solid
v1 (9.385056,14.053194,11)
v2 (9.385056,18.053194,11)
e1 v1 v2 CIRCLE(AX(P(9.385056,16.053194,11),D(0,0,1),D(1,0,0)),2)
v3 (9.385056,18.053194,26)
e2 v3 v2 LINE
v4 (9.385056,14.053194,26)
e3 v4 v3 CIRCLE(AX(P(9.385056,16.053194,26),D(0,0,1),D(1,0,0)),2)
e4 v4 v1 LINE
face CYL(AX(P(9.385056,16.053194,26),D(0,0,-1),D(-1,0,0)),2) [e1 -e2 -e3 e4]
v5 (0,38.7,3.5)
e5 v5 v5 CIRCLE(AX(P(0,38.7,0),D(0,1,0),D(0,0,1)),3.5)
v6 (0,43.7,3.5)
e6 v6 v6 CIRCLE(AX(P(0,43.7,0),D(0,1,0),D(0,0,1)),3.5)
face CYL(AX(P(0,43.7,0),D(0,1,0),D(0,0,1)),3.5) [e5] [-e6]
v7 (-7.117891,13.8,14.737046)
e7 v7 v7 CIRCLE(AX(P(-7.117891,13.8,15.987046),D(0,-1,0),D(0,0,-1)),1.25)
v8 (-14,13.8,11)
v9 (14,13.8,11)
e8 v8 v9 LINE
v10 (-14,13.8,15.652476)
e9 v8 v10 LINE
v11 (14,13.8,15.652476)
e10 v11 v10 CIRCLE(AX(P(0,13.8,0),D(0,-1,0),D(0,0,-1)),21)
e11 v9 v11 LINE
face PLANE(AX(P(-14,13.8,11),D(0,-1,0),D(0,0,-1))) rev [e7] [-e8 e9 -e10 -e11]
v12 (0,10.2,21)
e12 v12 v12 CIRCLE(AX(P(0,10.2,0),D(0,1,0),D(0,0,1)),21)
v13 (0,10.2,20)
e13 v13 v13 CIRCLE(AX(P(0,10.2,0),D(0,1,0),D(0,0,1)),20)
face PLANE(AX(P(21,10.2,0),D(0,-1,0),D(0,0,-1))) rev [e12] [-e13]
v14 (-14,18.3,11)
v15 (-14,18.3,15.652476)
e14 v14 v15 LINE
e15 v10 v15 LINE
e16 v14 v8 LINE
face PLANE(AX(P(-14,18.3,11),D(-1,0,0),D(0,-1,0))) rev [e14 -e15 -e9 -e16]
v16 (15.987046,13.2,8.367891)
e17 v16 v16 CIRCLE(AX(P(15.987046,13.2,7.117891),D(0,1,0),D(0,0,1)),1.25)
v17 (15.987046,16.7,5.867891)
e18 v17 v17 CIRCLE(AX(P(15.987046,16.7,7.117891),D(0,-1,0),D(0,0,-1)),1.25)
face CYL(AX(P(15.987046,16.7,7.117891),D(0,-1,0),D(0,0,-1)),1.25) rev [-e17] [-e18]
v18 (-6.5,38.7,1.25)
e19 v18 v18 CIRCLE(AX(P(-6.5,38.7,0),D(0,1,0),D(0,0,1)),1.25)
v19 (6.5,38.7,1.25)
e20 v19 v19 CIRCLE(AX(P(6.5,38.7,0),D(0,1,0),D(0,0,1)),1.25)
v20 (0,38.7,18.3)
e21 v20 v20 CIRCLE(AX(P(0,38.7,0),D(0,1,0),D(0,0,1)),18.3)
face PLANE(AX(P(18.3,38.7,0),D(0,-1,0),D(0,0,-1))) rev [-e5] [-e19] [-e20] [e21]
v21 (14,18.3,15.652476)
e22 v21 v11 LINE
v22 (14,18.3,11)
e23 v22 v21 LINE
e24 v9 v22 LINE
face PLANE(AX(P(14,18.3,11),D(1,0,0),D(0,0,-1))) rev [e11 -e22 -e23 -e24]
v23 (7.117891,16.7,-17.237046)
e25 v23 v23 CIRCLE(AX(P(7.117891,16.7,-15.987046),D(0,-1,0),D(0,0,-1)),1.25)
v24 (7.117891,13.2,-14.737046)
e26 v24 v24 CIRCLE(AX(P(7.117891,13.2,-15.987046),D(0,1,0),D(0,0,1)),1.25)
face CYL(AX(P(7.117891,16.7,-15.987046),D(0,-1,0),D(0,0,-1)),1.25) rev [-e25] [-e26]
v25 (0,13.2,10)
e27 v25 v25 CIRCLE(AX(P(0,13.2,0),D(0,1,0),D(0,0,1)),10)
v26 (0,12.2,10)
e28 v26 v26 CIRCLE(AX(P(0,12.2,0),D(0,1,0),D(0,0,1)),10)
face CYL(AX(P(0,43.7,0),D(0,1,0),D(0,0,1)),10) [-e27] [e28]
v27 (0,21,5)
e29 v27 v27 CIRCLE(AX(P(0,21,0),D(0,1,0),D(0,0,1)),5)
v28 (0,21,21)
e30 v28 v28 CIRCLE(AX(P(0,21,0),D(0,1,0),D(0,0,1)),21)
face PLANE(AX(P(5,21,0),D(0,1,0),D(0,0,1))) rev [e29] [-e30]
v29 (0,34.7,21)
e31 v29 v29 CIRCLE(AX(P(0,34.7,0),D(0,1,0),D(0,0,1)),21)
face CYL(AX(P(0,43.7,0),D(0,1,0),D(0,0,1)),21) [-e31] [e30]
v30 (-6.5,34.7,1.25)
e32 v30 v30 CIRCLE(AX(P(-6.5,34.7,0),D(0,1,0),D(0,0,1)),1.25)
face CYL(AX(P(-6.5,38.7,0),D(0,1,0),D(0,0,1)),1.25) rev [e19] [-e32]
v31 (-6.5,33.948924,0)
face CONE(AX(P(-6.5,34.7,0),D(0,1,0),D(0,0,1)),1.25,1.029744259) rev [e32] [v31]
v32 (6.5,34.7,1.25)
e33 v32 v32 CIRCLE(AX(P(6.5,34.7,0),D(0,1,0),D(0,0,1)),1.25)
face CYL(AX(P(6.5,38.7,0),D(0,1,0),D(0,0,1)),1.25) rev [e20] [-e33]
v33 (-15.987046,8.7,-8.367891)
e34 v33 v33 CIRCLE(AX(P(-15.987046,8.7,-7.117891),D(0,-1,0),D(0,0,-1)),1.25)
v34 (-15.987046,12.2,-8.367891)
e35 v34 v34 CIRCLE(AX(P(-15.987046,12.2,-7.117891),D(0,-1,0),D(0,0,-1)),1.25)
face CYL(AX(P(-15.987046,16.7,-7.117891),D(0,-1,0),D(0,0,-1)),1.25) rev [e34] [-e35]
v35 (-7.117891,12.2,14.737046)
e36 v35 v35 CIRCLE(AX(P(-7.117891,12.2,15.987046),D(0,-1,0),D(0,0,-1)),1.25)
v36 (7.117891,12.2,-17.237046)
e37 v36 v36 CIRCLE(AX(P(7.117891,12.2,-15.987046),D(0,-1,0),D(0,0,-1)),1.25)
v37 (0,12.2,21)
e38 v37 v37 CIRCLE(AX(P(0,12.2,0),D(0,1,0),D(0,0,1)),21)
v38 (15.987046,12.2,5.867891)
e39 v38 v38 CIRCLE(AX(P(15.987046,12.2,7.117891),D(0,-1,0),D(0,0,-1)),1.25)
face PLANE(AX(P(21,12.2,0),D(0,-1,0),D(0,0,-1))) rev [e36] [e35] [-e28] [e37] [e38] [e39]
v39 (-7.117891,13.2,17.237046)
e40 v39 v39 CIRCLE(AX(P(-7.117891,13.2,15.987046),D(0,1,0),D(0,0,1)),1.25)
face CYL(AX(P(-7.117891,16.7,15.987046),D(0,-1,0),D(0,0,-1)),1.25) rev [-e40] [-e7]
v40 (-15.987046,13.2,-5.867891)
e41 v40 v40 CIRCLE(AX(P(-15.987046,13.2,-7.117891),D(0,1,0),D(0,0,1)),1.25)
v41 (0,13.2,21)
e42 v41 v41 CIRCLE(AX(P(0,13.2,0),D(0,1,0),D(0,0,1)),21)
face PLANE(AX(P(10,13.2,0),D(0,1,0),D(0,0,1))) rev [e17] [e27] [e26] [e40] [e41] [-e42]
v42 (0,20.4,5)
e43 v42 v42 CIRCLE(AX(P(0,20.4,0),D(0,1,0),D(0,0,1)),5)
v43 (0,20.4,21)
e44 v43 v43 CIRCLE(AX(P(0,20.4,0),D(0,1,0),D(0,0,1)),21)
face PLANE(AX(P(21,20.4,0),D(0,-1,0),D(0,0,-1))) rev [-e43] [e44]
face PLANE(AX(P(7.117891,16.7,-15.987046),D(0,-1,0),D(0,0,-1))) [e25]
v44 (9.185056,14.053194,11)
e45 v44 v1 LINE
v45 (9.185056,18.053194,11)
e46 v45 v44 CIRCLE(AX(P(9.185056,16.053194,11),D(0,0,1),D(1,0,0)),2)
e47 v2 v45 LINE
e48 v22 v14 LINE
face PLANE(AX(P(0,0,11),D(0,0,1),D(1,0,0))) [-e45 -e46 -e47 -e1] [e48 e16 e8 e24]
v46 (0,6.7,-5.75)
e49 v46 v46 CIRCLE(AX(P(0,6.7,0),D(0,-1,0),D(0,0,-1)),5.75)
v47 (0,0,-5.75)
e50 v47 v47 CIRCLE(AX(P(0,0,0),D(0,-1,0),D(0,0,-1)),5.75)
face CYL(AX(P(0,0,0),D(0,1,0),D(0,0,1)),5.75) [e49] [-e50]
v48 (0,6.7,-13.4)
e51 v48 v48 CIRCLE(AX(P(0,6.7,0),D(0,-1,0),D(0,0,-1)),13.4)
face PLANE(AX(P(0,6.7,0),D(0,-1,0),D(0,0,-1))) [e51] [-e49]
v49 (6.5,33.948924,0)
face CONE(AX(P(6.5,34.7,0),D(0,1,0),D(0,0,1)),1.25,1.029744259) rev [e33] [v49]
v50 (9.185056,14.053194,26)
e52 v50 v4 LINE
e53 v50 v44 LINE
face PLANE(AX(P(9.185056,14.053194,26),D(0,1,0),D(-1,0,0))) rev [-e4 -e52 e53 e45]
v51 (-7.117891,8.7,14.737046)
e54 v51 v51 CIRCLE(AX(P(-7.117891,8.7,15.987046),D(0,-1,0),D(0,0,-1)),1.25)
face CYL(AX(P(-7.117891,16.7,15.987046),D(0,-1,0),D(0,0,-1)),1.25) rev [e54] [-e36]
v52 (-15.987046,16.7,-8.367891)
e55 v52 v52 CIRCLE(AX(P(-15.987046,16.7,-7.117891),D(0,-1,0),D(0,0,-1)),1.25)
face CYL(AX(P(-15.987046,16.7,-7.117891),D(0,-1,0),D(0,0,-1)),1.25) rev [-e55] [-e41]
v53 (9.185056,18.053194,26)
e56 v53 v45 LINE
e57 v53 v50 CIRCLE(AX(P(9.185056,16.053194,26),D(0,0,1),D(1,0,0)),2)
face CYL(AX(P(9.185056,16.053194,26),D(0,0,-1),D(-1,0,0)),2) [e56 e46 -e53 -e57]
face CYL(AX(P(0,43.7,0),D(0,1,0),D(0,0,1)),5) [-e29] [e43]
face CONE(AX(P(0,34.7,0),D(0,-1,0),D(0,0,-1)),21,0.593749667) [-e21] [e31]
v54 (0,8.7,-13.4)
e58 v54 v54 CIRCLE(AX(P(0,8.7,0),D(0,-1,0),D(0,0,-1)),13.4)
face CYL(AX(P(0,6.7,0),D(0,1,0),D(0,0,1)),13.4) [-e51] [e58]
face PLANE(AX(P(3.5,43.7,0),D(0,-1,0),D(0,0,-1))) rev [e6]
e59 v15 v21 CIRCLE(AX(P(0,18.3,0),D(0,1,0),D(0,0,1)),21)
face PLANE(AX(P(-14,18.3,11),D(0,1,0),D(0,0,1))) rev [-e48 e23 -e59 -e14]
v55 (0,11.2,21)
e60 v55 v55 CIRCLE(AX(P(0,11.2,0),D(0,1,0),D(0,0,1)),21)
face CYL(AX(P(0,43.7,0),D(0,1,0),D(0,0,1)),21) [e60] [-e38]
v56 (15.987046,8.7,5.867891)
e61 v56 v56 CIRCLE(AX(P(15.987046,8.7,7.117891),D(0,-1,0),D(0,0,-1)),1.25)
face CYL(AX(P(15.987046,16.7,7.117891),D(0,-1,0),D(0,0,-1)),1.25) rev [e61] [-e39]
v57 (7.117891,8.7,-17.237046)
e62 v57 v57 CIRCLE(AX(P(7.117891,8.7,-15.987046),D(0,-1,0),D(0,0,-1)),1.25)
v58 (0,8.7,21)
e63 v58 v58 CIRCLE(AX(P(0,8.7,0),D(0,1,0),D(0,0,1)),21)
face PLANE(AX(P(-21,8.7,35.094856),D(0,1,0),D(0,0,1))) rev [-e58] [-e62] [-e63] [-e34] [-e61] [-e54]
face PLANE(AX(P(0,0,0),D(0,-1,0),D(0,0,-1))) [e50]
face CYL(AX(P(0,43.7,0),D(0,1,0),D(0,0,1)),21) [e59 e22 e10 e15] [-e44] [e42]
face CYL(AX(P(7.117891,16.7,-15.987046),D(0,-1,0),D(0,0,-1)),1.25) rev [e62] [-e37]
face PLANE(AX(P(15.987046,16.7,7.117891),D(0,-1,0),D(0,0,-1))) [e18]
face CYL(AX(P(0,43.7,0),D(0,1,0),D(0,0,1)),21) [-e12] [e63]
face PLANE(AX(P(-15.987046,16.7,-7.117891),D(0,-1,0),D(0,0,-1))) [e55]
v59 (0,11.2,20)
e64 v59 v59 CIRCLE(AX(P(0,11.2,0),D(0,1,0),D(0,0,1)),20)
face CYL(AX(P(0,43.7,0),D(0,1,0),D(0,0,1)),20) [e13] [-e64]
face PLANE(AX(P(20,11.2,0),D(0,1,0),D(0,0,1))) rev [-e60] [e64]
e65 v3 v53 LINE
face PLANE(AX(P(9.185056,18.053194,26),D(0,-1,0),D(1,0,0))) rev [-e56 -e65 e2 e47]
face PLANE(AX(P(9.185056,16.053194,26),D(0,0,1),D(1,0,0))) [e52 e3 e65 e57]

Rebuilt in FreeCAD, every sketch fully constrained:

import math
import FreeCAD as App
import Part
import Sketcher

V = App.Vector
Q = App.Units.Quantity

doc = App.newDocument("Part")
body = doc.addObject("PartDesign::Body", "Body")

# Sketch on XY plane
sketch1 = body.newObject("Sketcher::SketchObject", "Sketch")
sketch1.AttachmentSupport = (doc.getObject("XY_Plane"), [""])
sketch1.MapMode = "FlatFace"
sketch1.addGeometry(Part.LineSegment(V(0, 0, 0), V(4.1, 0, 0)), False)
sketch1.addGeometry(Part.LineSegment(V(4.1, 0, 0), V(4.1, 6.7, 0)), False)
sketch1.addGeometry(Part.LineSegment(V(4.1, 6.7, 0), V(13.4, 6.7, 0)), False)
sketch1.addGeometry(Part.LineSegment(V(13.4, 6.7, 0), V(13.4, 8.7, 0)), False)
sketch1.addGeometry(Part.LineSegment(V(13.4, 8.7, 0), V(21, 8.7, 0)), False)
sketch1.addGeometry(Part.LineSegment(V(21, 8.7, 0), V(21, 10.2, 0)), False)
sketch1.addGeometry(Part.LineSegment(V(21, 10.2, 0), V(20, 10.2, 0)), False)
sketch1.addGeometry(Part.LineSegment(V(20, 10.2, 0), V(20, 11.2, 0)), False)
sketch1.addGeometry(Part.LineSegment(V(20, 11.2, 0), V(21, 11.2, 0)), False)
sketch1.addGeometry(Part.LineSegment(V(21, 11.2, 0), V(21, 12.2, 0)), False)
sketch1.addGeometry(Part.LineSegment(V(21, 12.2, 0), V(10, 12.2, 0)), False)
sketch1.addGeometry(Part.LineSegment(V(10, 12.2, 0), V(10, 13.2, 0)), False)
sketch1.addGeometry(Part.LineSegment(V(10, 13.2, 0), V(21, 13.2, 0)), False)
sketch1.addGeometry(Part.LineSegment(V(21, 13.2, 0), V(21, 20.4, 0)), False)
sketch1.addGeometry(Part.LineSegment(V(21, 20.4, 0), V(5, 20.4, 0)), False)
sketch1.addGeometry(Part.LineSegment(V(5, 20.4, 0), V(5, 21, 0)), False)
sketch1.addGeometry(Part.LineSegment(V(5, 21, 0), V(21, 21, 0)), False)
sketch1.addGeometry(Part.LineSegment(V(21, 21, 0), V(21, 34.7, 0)), False)
sketch1.addGeometry(Part.LineSegment(V(21, 34.7, 0), V(18.3, 38.7, 0)), False)
sketch1.addGeometry(Part.LineSegment(V(18.3, 38.7, 0), V(3.5, 38.7, 0)), False)
sketch1.addGeometry(Part.LineSegment(V(3.5, 38.7, 0), V(3.5, 43.7, 0)), False)
sketch1.addGeometry(Part.LineSegment(V(3.5, 43.7, 0), V(0, 43.7, 0)), False)
sketch1.addGeometry(Part.LineSegment(V(0, 43.7, 0), V(0, 0, 0)), False)
sketch1.addConstraint(Sketcher.Constraint("Coincident", 0, 2, 1, 1))
sketch1.addConstraint(Sketcher.Constraint("Coincident", 1, 2, 2, 1))
sketch1.addConstraint(Sketcher.Constraint("Coincident", 2, 2, 3, 1))
sketch1.addConstraint(Sketcher.Constraint("Coincident", 3, 2, 4, 1))
sketch1.addConstraint(Sketcher.Constraint("Coincident", 4, 2, 5, 1))
sketch1.addConstraint(Sketcher.Constraint("Coincident", 5, 2, 6, 1))
sketch1.addConstraint(Sketcher.Constraint("Coincident", 6, 2, 7, 1))
sketch1.addConstraint(Sketcher.Constraint("Coincident", 7, 2, 8, 1))
sketch1.addConstraint(Sketcher.Constraint("Coincident", 8, 2, 9, 1))
sketch1.addConstraint(Sketcher.Constraint("Coincident", 9, 2, 10, 1))
sketch1.addConstraint(Sketcher.Constraint("Coincident", 10, 2, 11, 1))
sketch1.addConstraint(Sketcher.Constraint("Coincident", 11, 2, 12, 1))
sketch1.addConstraint(Sketcher.Constraint("Coincident", 12, 2, 13, 1))
sketch1.addConstraint(Sketcher.Constraint("Coincident", 13, 2, 14, 1))
sketch1.addConstraint(Sketcher.Constraint("Coincident", 14, 2, 15, 1))
sketch1.addConstraint(Sketcher.Constraint("Coincident", 15, 2, 16, 1))
sketch1.addConstraint(Sketcher.Constraint("Coincident", 16, 2, 17, 1))
sketch1.addConstraint(Sketcher.Constraint("Coincident", 17, 2, 18, 1))
sketch1.addConstraint(Sketcher.Constraint("Coincident", 18, 2, 19, 1))
sketch1.addConstraint(Sketcher.Constraint("Coincident", 19, 2, 20, 1))
sketch1.addConstraint(Sketcher.Constraint("Coincident", 20, 2, 21, 1))
sketch1.addConstraint(Sketcher.Constraint("Coincident", 21, 2, 22, 1))
sketch1.addConstraint(Sketcher.Constraint("Coincident", 22, 2, 0, 1))
sketch1.addConstraint(Sketcher.Constraint("Horizontal", 0))
sketch1.addConstraint(Sketcher.Constraint("Vertical", 1))
sketch1.addConstraint(Sketcher.Constraint("Horizontal", 2))
sketch1.addConstraint(Sketcher.Constraint("Vertical", 3))
sketch1.addConstraint(Sketcher.Constraint("Horizontal", 4))
sketch1.addConstraint(Sketcher.Constraint("Vertical", 5))
sketch1.addConstraint(Sketcher.Constraint("Horizontal", 6))
sketch1.addConstraint(Sketcher.Constraint("Vertical", 7))
sketch1.addConstraint(Sketcher.Constraint("Horizontal", 8))
sketch1.addConstraint(Sketcher.Constraint("Vertical", 9))
sketch1.addConstraint(Sketcher.Constraint("Horizontal", 10))
sketch1.addConstraint(Sketcher.Constraint("Vertical", 11))
sketch1.addConstraint(Sketcher.Constraint("Horizontal", 12))
sketch1.addConstraint(Sketcher.Constraint("Vertical", 13))
sketch1.addConstraint(Sketcher.Constraint("Horizontal", 14))
sketch1.addConstraint(Sketcher.Constraint("Vertical", 15))
sketch1.addConstraint(Sketcher.Constraint("Horizontal", 16))
sketch1.addConstraint(Sketcher.Constraint("Vertical", 17))
sketch1.addConstraint(Sketcher.Constraint("Horizontal", 19))
sketch1.addConstraint(Sketcher.Constraint("Vertical", 20))
sketch1.addConstraint(Sketcher.Constraint("Horizontal", 21))
sketch1.addConstraint(Sketcher.Constraint("Vertical", 22))
sketch1.addConstraint(Sketcher.Constraint("Coincident", 22, 2, -1, 1))
sketch1.addConstraint(Sketcher.Constraint("Vertical", 5, 2, 8, 2))
sketch1.addConstraint(Sketcher.Constraint("Vertical", 9, 2, 12, 2))
sketch1.addConstraint(Sketcher.Constraint("Vertical", 13, 2, 16, 2))
sketch1.addConstraint(Sketcher.Constraint("Equal", 8, 7))
sketch1.addConstraint(Sketcher.Constraint("Equal", 7, 9))
sketch1.addConstraint(Sketcher.Constraint("Equal", 9, 11))
sketch1.addConstraint(Sketcher.Constraint("DistanceX", 6, 2, 6, 1, Q("1 mm")))
sketch1.addConstraint(Sketcher.Constraint("DistanceX", 10, 2, 10, 1, Q("11 mm")))
sketch1.addConstraint(Sketcher.Constraint("DistanceX", 14, 2, 14, 1, Q("16 mm")))
sketch1.addConstraint(Sketcher.Constraint("DistanceY", 3, 1, 3, 2, Q("2 mm")))
sketch1.addConstraint(Sketcher.Constraint("DistanceY", 20, 1, 20, 2, Q("5 mm")))
sketch1.addConstraint(Sketcher.Constraint("DistanceX", 0, 1, 0, 2, Q("4.1 mm")))
sketch1.addConstraint(Sketcher.Constraint("DistanceX", 2, 1, 2, 2, Q("9.3 mm")))
sketch1.addConstraint(Sketcher.Constraint("DistanceX", 4, 1, 4, 2, Q("7.6 mm")))
sketch1.addConstraint(Sketcher.Constraint("DistanceX", 19, 2, 19, 1, Q("14.8 mm")))
sketch1.addConstraint(Sketcher.Constraint("DistanceX", 21, 2, 21, 1, Q("3.5 mm")))
sketch1.addConstraint(Sketcher.Constraint("DistanceY", 1, 1, 1, 2, Q("6.7 mm")))
sketch1.addConstraint(Sketcher.Constraint("DistanceY", 5, 1, 5, 2, Q("1.5 mm")))
sketch1.addConstraint(Sketcher.Constraint("DistanceY", 13, 1, 13, 2, Q("7.2 mm")))
sketch1.addConstraint(Sketcher.Constraint("DistanceY", 15, 1, 15, 2, Q("0.6 mm")))
sketch1.addConstraint(Sketcher.Constraint("DistanceY", 17, 1, 17, 2, Q("13.7 mm")))
sketch1.addConstraint(Sketcher.Constraint("DistanceY", 22, 2, 22, 1, Q("43.7 mm")))
revolution = body.newObject("PartDesign::Revolution", "Revolution")
revolution.Profile = sketch1
revolution.ReferenceAxis = (sketch1, ["V_Axis"])
revolution.Angle = 360

# Sketch on XY plane
sketch2 = body.newObject("Sketcher::SketchObject", "Sketch001")
sketch2.AttachmentSupport = (doc.getObject("XY_Plane"), [""])
sketch2.MapMode = "FlatFace"
sketch2.AttachmentOffset = App.Placement(V(0, 0, 21), App.Rotation())
sketch2.addGeometry(Part.LineSegment(V(-14, 18.3, 0), V(-14, 13.8, 0)), False)
sketch2.addGeometry(Part.LineSegment(V(-14, 13.8, 0), V(14, 13.8, 0)), False)
sketch2.addGeometry(Part.LineSegment(V(14, 13.8, 0), V(14, 18.3, 0)), False)
sketch2.addGeometry(Part.LineSegment(V(14, 18.3, 0), V(-14, 18.3, 0)), False)
sketch2.addConstraint(Sketcher.Constraint("Coincident", 0, 2, 1, 1))
sketch2.addConstraint(Sketcher.Constraint("Coincident", 1, 2, 2, 1))
sketch2.addConstraint(Sketcher.Constraint("Coincident", 2, 2, 3, 1))
sketch2.addConstraint(Sketcher.Constraint("Coincident", 3, 2, 0, 1))
sketch2.addConstraint(Sketcher.Constraint("Vertical", 0))
sketch2.addConstraint(Sketcher.Constraint("Horizontal", 1))
sketch2.addConstraint(Sketcher.Constraint("Vertical", 2))
sketch2.addConstraint(Sketcher.Constraint("Horizontal", 3))
sketch2.addConstraint(Sketcher.Constraint("DistanceX", 1, 1, 1, 2, Q("28 mm")))
sketch2.addConstraint(Sketcher.Constraint("DistanceY", 0, 2, 0, 1, Q("4.5 mm")))
sketch2.addConstraint(Sketcher.Constraint("DistanceX", 0, 2, -1, 1, Q("14 mm")))
sketch2.addConstraint(Sketcher.Constraint("DistanceY", -1, 1, 0, 2, Q("13.8 mm")))
pocket1 = body.newObject("PartDesign::Pocket", "Pocket")
pocket1.Profile = sketch2
pocket1.Length = 10

# Sketch on XY plane
sketch3 = body.newObject("Sketcher::SketchObject", "Sketch002")
sketch3.AttachmentSupport = (doc.getObject("XY_Plane"), [""])
sketch3.MapMode = "FlatFace"
sketch3.AttachmentOffset = App.Placement(V(0, 0, 11), App.Rotation())
sketch3.addGeometry(Part.LineSegment(V(9.385056, 18.053194, 0), V(9.185056, 18.053194, 0)), False)
sketch3.addGeometry(Part.ArcOfCircle(Part.Circle(V(9.185056, 16.053194, 0), V(0, 0, 1), 2), math.radians(90), math.radians(270)), False)
sketch3.addGeometry(Part.LineSegment(V(9.185056, 14.053194, 0), V(9.385056, 14.053194, 0)), False)
sketch3.addGeometry(Part.ArcOfCircle(Part.Circle(V(9.385056, 16.053194, 0), V(0, 0, 1), 2), math.radians(-90), math.radians(90)), False)
sketch3.addConstraint(Sketcher.Constraint("Tangent", 0, 2, 1, 1))
sketch3.addConstraint(Sketcher.Constraint("Tangent", 1, 2, 2, 1))
sketch3.addConstraint(Sketcher.Constraint("Tangent", 2, 2, 3, 1))
sketch3.addConstraint(Sketcher.Constraint("Tangent", 3, 2, 0, 1))
sketch3.addConstraint(Sketcher.Constraint("Horizontal", 0))
sketch3.addConstraint(Sketcher.Constraint("Horizontal", 2))
sketch3.addConstraint(Sketcher.Constraint("Radius", 1, Q("2 mm")))
sketch3.addConstraint(Sketcher.Constraint("DistanceX", 0, 2, 0, 1, Q("0.2 mm")))
sketch3.addConstraint(Sketcher.Constraint("DistanceX", -1, 1, 1, 3, Q("9.185056 mm")))
sketch3.addConstraint(Sketcher.Constraint("DistanceY", -1, 1, 1, 3, Q("16.053194 mm")))
pad1 = body.newObject("PartDesign::Pad", "Pad")
pad1.Profile = sketch3
pad1.Length = 15

# Sketch on XZ plane
sketch4 = body.newObject("Sketcher::SketchObject", "Sketch003")
sketch4.AttachmentSupport = (doc.getObject("XZ_Plane"), [""])
sketch4.MapMode = "FlatFace"
sketch4.AttachmentOffset = App.Placement(V(0, 0, -38.7), App.Rotation())
sketch4.addGeometry(Part.Circle(V(-6.5, 0, 0), V(0, 0, 1), 1.25), False)
sketch4.addGeometry(Part.Circle(V(6.5, 0, 0), V(0, 0, 1), 1.25), False)
sketch4.addConstraint(Sketcher.Constraint("Equal", 0, 1))
sketch4.addConstraint(Sketcher.Constraint("Symmetric", 0, 3, 1, 3, -1, 1))
sketch4.addConstraint(Sketcher.Constraint("PointOnObject", 0, 3, -1))
sketch4.addConstraint(Sketcher.Constraint("Diameter", 0, Q("2.5 mm")))
sketch4.addConstraint(Sketcher.Constraint("DistanceX", 0, 3, 1, 3, Q("13 mm")))
doc.recompute()
hole = body.newObject("PartDesign::Hole", "Hole")
hole.Profile = sketch4
hole.ThreadType = "None"
hole.Diameter = 2.5
hole.DepthType = "Dimension"
hole.Depth = 4
hole.DrillPoint = "Angled"
hole.DrillPointAngle = 118
hole.Reversed = True

# Sketch on XY plane
sketch5 = body.newObject("Sketcher::SketchObject", "Sketch004")
sketch5.AttachmentSupport = (doc.getObject("XY_Plane"), [""])
sketch5.MapMode = "FlatFace"
sketch5.addGeometry(Part.LineSegment(V(0, -54.6, 0), V(5, -54.6, 0)), False)
sketch5.addGeometry(Part.LineSegment(V(5, -54.6, 0), V(5, -30.5, 0)), False)
sketch5.addGeometry(Part.LineSegment(V(5, -30.5, 0), V(8.275, -30.5, 0)), False)
sketch5.addGeometry(Part.LineSegment(V(8.275, -30.5, 0), V(8.275, -29.6, 0)), False)
sketch5.addGeometry(Part.LineSegment(V(8.275, -29.6, 0), V(13, -29.6, 0)), False)
sketch5.addGeometry(Part.LineSegment(V(13, -29.6, 0), V(13, -27.6, 0)), False)
sketch5.addGeometry(Part.LineSegment(V(13, -27.6, 0), V(21, -27.6, 0)), False)
sketch5.addGeometry(Part.LineSegment(V(21, -27.6, 0), V(21, 8.7, 0)), False)
sketch5.addGeometry(Part.LineSegment(V(21, 8.7, 0), V(0, 8.7, 0)), False)
sketch5.addGeometry(Part.LineSegment(V(0, 8.7, 0), V(0, -54.6, 0)), False)
sketch5.addConstraint(Sketcher.Constraint("Coincident", 0, 2, 1, 1))
sketch5.addConstraint(Sketcher.Constraint("Coincident", 1, 2, 2, 1))
sketch5.addConstraint(Sketcher.Constraint("Coincident", 2, 2, 3, 1))
sketch5.addConstraint(Sketcher.Constraint("Coincident", 3, 2, 4, 1))
sketch5.addConstraint(Sketcher.Constraint("Coincident", 4, 2, 5, 1))
sketch5.addConstraint(Sketcher.Constraint("Coincident", 5, 2, 6, 1))
sketch5.addConstraint(Sketcher.Constraint("Coincident", 6, 2, 7, 1))
sketch5.addConstraint(Sketcher.Constraint("Coincident", 7, 2, 8, 1))
sketch5.addConstraint(Sketcher.Constraint("Coincident", 8, 2, 9, 1))
sketch5.addConstraint(Sketcher.Constraint("Coincident", 9, 2, 0, 1))
sketch5.addConstraint(Sketcher.Constraint("Horizontal", 0))
sketch5.addConstraint(Sketcher.Constraint("Vertical", 1))
sketch5.addConstraint(Sketcher.Constraint("Horizontal", 2))
sketch5.addConstraint(Sketcher.Constraint("Vertical", 3))
sketch5.addConstraint(Sketcher.Constraint("Horizontal", 4))
sketch5.addConstraint(Sketcher.Constraint("Vertical", 5))
sketch5.addConstraint(Sketcher.Constraint("Horizontal", 6))
sketch5.addConstraint(Sketcher.Constraint("Vertical", 7))
sketch5.addConstraint(Sketcher.Constraint("Horizontal", 8))
sketch5.addConstraint(Sketcher.Constraint("Vertical", 9))
sketch5.addConstraint(Sketcher.Constraint("PointOnObject", 8, 2, -2))
sketch5.addConstraint(Sketcher.Constraint("DistanceX", 0, 1, 0, 2, Q("5 mm")))
sketch5.addConstraint(Sketcher.Constraint("DistanceX", 6, 1, 6, 2, Q("8 mm")))
sketch5.addConstraint(Sketcher.Constraint("DistanceX", 8, 2, 8, 1, Q("21 mm")))
sketch5.addConstraint(Sketcher.Constraint("DistanceY", 5, 1, 5, 2, Q("2 mm")))
sketch5.addConstraint(Sketcher.Constraint("DistanceY", 1, 1, 1, 2, Q("24.1 mm")))
sketch5.addConstraint(Sketcher.Constraint("DistanceY", 3, 1, 3, 2, Q("0.9 mm")))
sketch5.addConstraint(Sketcher.Constraint("DistanceY", 7, 1, 7, 2, Q("36.3 mm")))
sketch5.addConstraint(Sketcher.Constraint("DistanceY", 0, 2, -1, 1, Q("54.6 mm")))
sketch5.addConstraint(Sketcher.Constraint("DistanceX", 2, 1, 2, 2, Q("3.275 mm")))
revolution2 = body.newObject("PartDesign::Revolution", "Revolution001")
revolution2.Profile = sketch5
revolution2.ReferenceAxis = (sketch5, ["V_Axis"])
revolution2.Angle = 360

# Sketch on XZ plane
sketch6 = body.newObject("Sketcher::SketchObject", "Sketch005")
sketch6.AttachmentSupport = (doc.getObject("XZ_Plane"), [""])
sketch6.MapMode = "FlatFace"
sketch6.AttachmentOffset = App.Placement(V(0, 0, 54.6), App.Rotation())
sketch6.addGeometry(Part.LineSegment(V(-3, 4, 0), V(3, 4, 0)), False)
sketch6.addGeometry(Part.ArcOfCircle(Part.Circle(V(0, 0, 0), V(0, 0, 1), 5), math.radians(53.130102), math.radians(126.869898)), False)
sketch6.addConstraint(Sketcher.Constraint("Coincident", 0, 1, 1, 2))
sketch6.addConstraint(Sketcher.Constraint("Coincident", 1, 1, 0, 2))
sketch6.addConstraint(Sketcher.Constraint("Horizontal", 0))
sketch6.addConstraint(Sketcher.Constraint("Coincident", 1, 3, -1, 1))
sketch6.addConstraint(Sketcher.Constraint("Radius", 1, Q("5 mm")))
sketch6.addConstraint(Sketcher.Constraint("DistanceX", 0, 1, 0, 2, Q("6 mm")))
pocket2 = body.newObject("PartDesign::Pocket", "Pocket001")
pocket2.Profile = sketch6
pocket2.Length = 20

# Sketch on XZ plane
sketch7 = body.newObject("Sketcher::SketchObject", "Sketch006")
sketch7.AttachmentSupport = (doc.getObject("XZ_Plane"), [""])
sketch7.MapMode = "FlatFace"
sketch7.AttachmentOffset = App.Placement(V(0, 0, 27.6), App.Rotation())
sketch7.addGeometry(Part.Circle(V(-17.5, 0, 0), V(0, 0, 1), 1.65), False)
sketch7.addGeometry(Part.Circle(V(0, 17.5, 0), V(0, 0, 1), 1.65), False)
sketch7.addGeometry(Part.Circle(V(17.5, 0, 0), V(0, 0, 1), 1.65), False)
sketch7.addGeometry(Part.Circle(V(0, -17.5, 0), V(0, 0, 1), 1.65), False)
sketch7.addConstraint(Sketcher.Constraint("Equal", 0, 1))
sketch7.addConstraint(Sketcher.Constraint("Equal", 1, 2))
sketch7.addConstraint(Sketcher.Constraint("Equal", 2, 3))
sketch7.addConstraint(Sketcher.Constraint("Symmetric", 0, 3, 2, 3, -1, 1))
sketch7.addConstraint(Sketcher.Constraint("Symmetric", 1, 3, 3, 3, -1, 1))
sketch7.addConstraint(Sketcher.Constraint("PointOnObject", 0, 3, -1))
sketch7.addConstraint(Sketcher.Constraint("PointOnObject", 1, 3, -2))
sketch7.addConstraint(Sketcher.Constraint("Diameter", 0, Q("3.3 mm")))
sketch7.addConstraint(Sketcher.Constraint("DistanceX", 0, 3, 2, 3, Q("35 mm")))
sketch7.addConstraint(Sketcher.Constraint("DistanceY", 3, 3, 1, 3, Q("35 mm")))
doc.recompute()
hole2 = body.newObject("PartDesign::Hole", "Hole001")
hole2.Profile = sketch7
hole2.ThreadType = "None"
hole2.Diameter = 3.3
hole2.DepthType = "Dimension"
hole2.Depth = 10.1
hole2.DrillPoint = "Angled"
hole2.DrillPointAngle = 118

# Sketch on XY plane
sketch8 = body.newObject("Sketcher::SketchObject", "Sketch007")
sketch8.AttachmentSupport = (doc.getObject("XY_Plane"), [""])
sketch8.MapMode = "FlatFace"
sketch8.AttachmentOffset = App.Placement(V(0, 0, 4), App.Rotation())
sketch8.addGeometry(Part.Circle(V(0, -44.6, 0), V(0, 0, 1), 1.25), False)
sketch8.addConstraint(Sketcher.Constraint("PointOnObject", 0, 3, -2))
sketch8.addConstraint(Sketcher.Constraint("Diameter", 0, Q("2.5 mm")))
sketch8.addConstraint(Sketcher.Constraint("DistanceY", 0, 3, -1, 1, Q("44.6 mm")))
doc.recompute()
hole3 = body.newObject("PartDesign::Hole", "Hole002")
hole3.Profile = sketch8
hole3.ThreadType = "None"
hole3.Diameter = 2.5
hole3.DepthType = "ThroughAll"

# Sketch on XZ plane
sketch9 = body.newObject("Sketcher::SketchObject", "Sketch008")
sketch9.AttachmentSupport = (doc.getObject("XZ_Plane"), [""])
sketch9.MapMode = "FlatFace"
sketch9.AttachmentOffset = App.Placement(V(0, 0, 54.6), App.Rotation())
sketch9.addGeometry(Part.Circle(V(0, 0, 0), V(0, 0, 1), 2.1), False)
sketch9.addConstraint(Sketcher.Constraint("Coincident", 0, 3, -1, 1))
sketch9.addConstraint(Sketcher.Constraint("Diameter", 0, Q("4.2 mm")))
doc.recompute()
hole4 = body.newObject("PartDesign::Hole", "Hole003")
hole4.Profile = sketch9
hole4.ThreadType = "None"
hole4.Diameter = 4.2
hole4.DepthType = "Dimension"
hole4.Depth = 14
hole4.DrillPoint = "Angled"
hole4.DrillPointAngle = 118

# Sketch on YZ plane
sketch10 = body.newObject("Sketcher::SketchObject", "Sketch009")
sketch10.AttachmentSupport = (doc.getObject("YZ_Plane"), [""])
sketch10.MapMode = "FlatFace"
sketch10.addGeometry(Part.LineSegment(V(8.7, 35.094856, 0), V(-74.533292, 35.094856, 0)), False)
sketch10.addGeometry(Part.LineSegment(V(-74.533292, 35.094856, 0), V(-74.533292, -38.680108, 0)), False)
sketch10.addGeometry(Part.LineSegment(V(-74.533292, -38.680108, 0), V(8.7, -38.680108, 0)), False)
sketch10.addGeometry(Part.LineSegment(V(8.7, -38.680108, 0), V(8.7, 35.094856, 0)), False)
sketch10.addConstraint(Sketcher.Constraint("Coincident", 0, 2, 1, 1))
sketch10.addConstraint(Sketcher.Constraint("Coincident", 1, 2, 2, 1))
sketch10.addConstraint(Sketcher.Constraint("Coincident", 2, 2, 3, 1))
sketch10.addConstraint(Sketcher.Constraint("Coincident", 3, 2, 0, 1))
sketch10.addConstraint(Sketcher.Constraint("Horizontal", 0))
sketch10.addConstraint(Sketcher.Constraint("Vertical", 1))
sketch10.addConstraint(Sketcher.Constraint("Horizontal", 2))
sketch10.addConstraint(Sketcher.Constraint("Vertical", 3))
sketch10.addConstraint(Sketcher.Constraint("DistanceX", -1, 1, 2, 2, Q("8.7 mm")))
sketch10.addConstraint(Sketcher.Constraint("DistanceX", 0, 2, 0, 1, Q("83.233292 mm")))
sketch10.addConstraint(Sketcher.Constraint("DistanceY", 1, 2, 1, 1, Q("73.774964 mm")))
sketch10.addConstraint(Sketcher.Constraint("DistanceY", -1, 1, 0, 2, Q("35.094856 mm")))
pocket3 = body.newObject("PartDesign::Pocket", "Pocket002")
pocket3.Profile = sketch10
pocket3.Type = "ThroughAll"
pocket3.Midplane = True

# Sketch on XZ plane
sketch11 = body.newObject("Sketcher::SketchObject", "Sketch010")
sketch11.AttachmentSupport = (doc.getObject("XZ_Plane"), [""])
sketch11.MapMode = "FlatFace"
sketch11.AttachmentOffset = App.Placement(V(0, 0, -8.7), App.Rotation())
sketch11.addGeometry(Part.Circle(V(0, 0, 0), V(0, 0, 1), 13.4), False)
sketch11.addConstraint(Sketcher.Constraint("Coincident", 0, 3, -1, 1))
sketch11.addConstraint(Sketcher.Constraint("Diameter", 0, Q("26.8 mm")))
pad2 = body.newObject("PartDesign::Pad", "Pad001")
pad2.Profile = sketch11
pad2.Length = 2

# Sketch on XZ plane
sketch12 = body.newObject("Sketcher::SketchObject", "Sketch011")
sketch12.AttachmentSupport = (doc.getObject("XZ_Plane"), [""])
sketch12.MapMode = "FlatFace"
sketch12.AttachmentOffset = App.Placement(V(0, 0, -6.7), App.Rotation())
sketch12.addGeometry(Part.Circle(V(0, 0, 0), V(0, 0, 1), 5.75), False)
sketch12.addConstraint(Sketcher.Constraint("Coincident", 0, 3, -1, 1))
sketch12.addConstraint(Sketcher.Constraint("Diameter", 0, Q("11.5 mm")))
pad3 = body.newObject("PartDesign::Pad", "Pad002")
pad3.Profile = sketch12
pad3.Length = 6.7

# Sketch on XZ plane
sketch13 = body.newObject("Sketcher::SketchObject", "Sketch012")
sketch13.AttachmentSupport = (doc.getObject("XZ_Plane"), [""])
sketch13.MapMode = "FlatFace"
sketch13.AttachmentOffset = App.Placement(V(0, 0, -8.7), App.Rotation())
sketch13.addGeometry(Part.Circle(V(-7.117891, 15.987046, 0), V(0, 0, 1), 1.25), False)
sketch13.addGeometry(Part.Circle(V(15.987046, 7.117891, 0), V(0, 0, 1), 1.25), False)
sketch13.addGeometry(Part.Circle(V(7.117891, -15.987046, 0), V(0, 0, 1), 1.25), False)
sketch13.addGeometry(Part.Circle(V(-15.987046, -7.117891, 0), V(0, 0, 1), 1.25), False)
sketch13.addConstraint(Sketcher.Constraint("Equal", 0, 1))
sketch13.addConstraint(Sketcher.Constraint("Equal", 1, 2))
sketch13.addConstraint(Sketcher.Constraint("Equal", 2, 3))
sketch13.addConstraint(Sketcher.Constraint("Symmetric", 0, 3, 2, 3, -1, 1))
sketch13.addConstraint(Sketcher.Constraint("Symmetric", 1, 3, 3, 3, -1, 1))
sketch13.addConstraint(Sketcher.Constraint("Diameter", 0, Q("2.5 mm")))
sketch13.addConstraint(Sketcher.Constraint("DistanceX", 0, 3, -1, 1, Q("7.117891 mm")))
sketch13.addConstraint(Sketcher.Constraint("DistanceY", -1, 1, 1, 3, Q("7.117891 mm")))
sketch13.addConstraint(Sketcher.Constraint("DistanceY", 2, 3, 0, 3, Q("31.974091 mm")))
sketch13.addConstraint(Sketcher.Constraint("DistanceX", 3, 3, 1, 3, Q("31.974091 mm")))
pocket4 = body.newObject("PartDesign::Pocket", "Pocket003")
pocket4.Profile = sketch13
pocket4.Length = 8

doc.recompute()
